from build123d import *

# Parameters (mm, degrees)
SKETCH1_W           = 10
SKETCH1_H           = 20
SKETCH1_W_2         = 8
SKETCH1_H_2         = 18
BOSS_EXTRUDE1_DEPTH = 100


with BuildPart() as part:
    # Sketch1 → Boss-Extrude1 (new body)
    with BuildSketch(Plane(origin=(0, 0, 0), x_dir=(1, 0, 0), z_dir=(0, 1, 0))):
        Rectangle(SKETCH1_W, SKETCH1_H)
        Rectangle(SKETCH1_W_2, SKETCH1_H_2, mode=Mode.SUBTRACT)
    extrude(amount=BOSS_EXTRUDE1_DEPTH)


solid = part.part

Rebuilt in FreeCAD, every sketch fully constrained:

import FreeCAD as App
import Part
import Sketcher

V = App.Vector
Q = App.Units.Quantity


def add_polygon(sketch, points):
    """Adds a closed chain of lines whose ends are joined by coincident constraints."""
    first, n = sketch.GeometryCount, len(points)
    for a, b in zip(points, points[1:] + points[:1]):
        sketch.addGeometry(Part.LineSegment(App.Vector(*a, 0), App.Vector(*b, 0)), False)
    for i in range(n):
        sketch.addConstraint(Sketcher.Constraint("Coincident", first + i, 2, first + (i + 1) % n, 1))

doc = App.newDocument("Part")
body = doc.addObject("PartDesign::Body", "Body")

# Sketch on XZ plane
sketch1 = body.newObject("Sketcher::SketchObject", "Sketch")
sketch1.AttachmentSupport = (doc.getObject("XZ_Plane"), [""])
sketch1.MapMode = "FlatFace"
add_polygon(sketch1, [(-5, -10), (-5, 10), (5, 10), (5, -10)])  # lines 0-3
add_polygon(sketch1, [(4, 9), (-4, 9), (-4, -9), (4, -9)])  # lines 4-7
sketch1.addConstraint([
    Sketcher.Constraint("Vertical", 0),
    Sketcher.Constraint("Horizontal", 1),
    Sketcher.Constraint("Vertical", 2),
    Sketcher.Constraint("Horizontal", 3),
    Sketcher.Constraint("Horizontal", 4),
    Sketcher.Constraint("Vertical", 5),
    Sketcher.Constraint("Horizontal", 6),
    Sketcher.Constraint("Vertical", 7),
    Sketcher.Constraint("Symmetric", 0, 2, 2, 2, -1, 1),
    Sketcher.Constraint("Symmetric", 4, 2, 6, 2, -1, 1),
    Sketcher.Constraint("DistanceX", 1, 1, 1, 2, Q("10 mm")),
    Sketcher.Constraint("DistanceX", 4, 2, 4, 1, Q("8 mm")),
    Sketcher.Constraint("DistanceY", 0, 1, 0, 2, Q("20 mm")),
    Sketcher.Constraint("DistanceY", 5, 2, 5, 1, Q("18 mm")),
])
pad1 = body.newObject("PartDesign::Pad", "Pad")
pad1.Profile = sketch1
pad1.Length = 100
pad1.Reversed = True

doc.recompute()
